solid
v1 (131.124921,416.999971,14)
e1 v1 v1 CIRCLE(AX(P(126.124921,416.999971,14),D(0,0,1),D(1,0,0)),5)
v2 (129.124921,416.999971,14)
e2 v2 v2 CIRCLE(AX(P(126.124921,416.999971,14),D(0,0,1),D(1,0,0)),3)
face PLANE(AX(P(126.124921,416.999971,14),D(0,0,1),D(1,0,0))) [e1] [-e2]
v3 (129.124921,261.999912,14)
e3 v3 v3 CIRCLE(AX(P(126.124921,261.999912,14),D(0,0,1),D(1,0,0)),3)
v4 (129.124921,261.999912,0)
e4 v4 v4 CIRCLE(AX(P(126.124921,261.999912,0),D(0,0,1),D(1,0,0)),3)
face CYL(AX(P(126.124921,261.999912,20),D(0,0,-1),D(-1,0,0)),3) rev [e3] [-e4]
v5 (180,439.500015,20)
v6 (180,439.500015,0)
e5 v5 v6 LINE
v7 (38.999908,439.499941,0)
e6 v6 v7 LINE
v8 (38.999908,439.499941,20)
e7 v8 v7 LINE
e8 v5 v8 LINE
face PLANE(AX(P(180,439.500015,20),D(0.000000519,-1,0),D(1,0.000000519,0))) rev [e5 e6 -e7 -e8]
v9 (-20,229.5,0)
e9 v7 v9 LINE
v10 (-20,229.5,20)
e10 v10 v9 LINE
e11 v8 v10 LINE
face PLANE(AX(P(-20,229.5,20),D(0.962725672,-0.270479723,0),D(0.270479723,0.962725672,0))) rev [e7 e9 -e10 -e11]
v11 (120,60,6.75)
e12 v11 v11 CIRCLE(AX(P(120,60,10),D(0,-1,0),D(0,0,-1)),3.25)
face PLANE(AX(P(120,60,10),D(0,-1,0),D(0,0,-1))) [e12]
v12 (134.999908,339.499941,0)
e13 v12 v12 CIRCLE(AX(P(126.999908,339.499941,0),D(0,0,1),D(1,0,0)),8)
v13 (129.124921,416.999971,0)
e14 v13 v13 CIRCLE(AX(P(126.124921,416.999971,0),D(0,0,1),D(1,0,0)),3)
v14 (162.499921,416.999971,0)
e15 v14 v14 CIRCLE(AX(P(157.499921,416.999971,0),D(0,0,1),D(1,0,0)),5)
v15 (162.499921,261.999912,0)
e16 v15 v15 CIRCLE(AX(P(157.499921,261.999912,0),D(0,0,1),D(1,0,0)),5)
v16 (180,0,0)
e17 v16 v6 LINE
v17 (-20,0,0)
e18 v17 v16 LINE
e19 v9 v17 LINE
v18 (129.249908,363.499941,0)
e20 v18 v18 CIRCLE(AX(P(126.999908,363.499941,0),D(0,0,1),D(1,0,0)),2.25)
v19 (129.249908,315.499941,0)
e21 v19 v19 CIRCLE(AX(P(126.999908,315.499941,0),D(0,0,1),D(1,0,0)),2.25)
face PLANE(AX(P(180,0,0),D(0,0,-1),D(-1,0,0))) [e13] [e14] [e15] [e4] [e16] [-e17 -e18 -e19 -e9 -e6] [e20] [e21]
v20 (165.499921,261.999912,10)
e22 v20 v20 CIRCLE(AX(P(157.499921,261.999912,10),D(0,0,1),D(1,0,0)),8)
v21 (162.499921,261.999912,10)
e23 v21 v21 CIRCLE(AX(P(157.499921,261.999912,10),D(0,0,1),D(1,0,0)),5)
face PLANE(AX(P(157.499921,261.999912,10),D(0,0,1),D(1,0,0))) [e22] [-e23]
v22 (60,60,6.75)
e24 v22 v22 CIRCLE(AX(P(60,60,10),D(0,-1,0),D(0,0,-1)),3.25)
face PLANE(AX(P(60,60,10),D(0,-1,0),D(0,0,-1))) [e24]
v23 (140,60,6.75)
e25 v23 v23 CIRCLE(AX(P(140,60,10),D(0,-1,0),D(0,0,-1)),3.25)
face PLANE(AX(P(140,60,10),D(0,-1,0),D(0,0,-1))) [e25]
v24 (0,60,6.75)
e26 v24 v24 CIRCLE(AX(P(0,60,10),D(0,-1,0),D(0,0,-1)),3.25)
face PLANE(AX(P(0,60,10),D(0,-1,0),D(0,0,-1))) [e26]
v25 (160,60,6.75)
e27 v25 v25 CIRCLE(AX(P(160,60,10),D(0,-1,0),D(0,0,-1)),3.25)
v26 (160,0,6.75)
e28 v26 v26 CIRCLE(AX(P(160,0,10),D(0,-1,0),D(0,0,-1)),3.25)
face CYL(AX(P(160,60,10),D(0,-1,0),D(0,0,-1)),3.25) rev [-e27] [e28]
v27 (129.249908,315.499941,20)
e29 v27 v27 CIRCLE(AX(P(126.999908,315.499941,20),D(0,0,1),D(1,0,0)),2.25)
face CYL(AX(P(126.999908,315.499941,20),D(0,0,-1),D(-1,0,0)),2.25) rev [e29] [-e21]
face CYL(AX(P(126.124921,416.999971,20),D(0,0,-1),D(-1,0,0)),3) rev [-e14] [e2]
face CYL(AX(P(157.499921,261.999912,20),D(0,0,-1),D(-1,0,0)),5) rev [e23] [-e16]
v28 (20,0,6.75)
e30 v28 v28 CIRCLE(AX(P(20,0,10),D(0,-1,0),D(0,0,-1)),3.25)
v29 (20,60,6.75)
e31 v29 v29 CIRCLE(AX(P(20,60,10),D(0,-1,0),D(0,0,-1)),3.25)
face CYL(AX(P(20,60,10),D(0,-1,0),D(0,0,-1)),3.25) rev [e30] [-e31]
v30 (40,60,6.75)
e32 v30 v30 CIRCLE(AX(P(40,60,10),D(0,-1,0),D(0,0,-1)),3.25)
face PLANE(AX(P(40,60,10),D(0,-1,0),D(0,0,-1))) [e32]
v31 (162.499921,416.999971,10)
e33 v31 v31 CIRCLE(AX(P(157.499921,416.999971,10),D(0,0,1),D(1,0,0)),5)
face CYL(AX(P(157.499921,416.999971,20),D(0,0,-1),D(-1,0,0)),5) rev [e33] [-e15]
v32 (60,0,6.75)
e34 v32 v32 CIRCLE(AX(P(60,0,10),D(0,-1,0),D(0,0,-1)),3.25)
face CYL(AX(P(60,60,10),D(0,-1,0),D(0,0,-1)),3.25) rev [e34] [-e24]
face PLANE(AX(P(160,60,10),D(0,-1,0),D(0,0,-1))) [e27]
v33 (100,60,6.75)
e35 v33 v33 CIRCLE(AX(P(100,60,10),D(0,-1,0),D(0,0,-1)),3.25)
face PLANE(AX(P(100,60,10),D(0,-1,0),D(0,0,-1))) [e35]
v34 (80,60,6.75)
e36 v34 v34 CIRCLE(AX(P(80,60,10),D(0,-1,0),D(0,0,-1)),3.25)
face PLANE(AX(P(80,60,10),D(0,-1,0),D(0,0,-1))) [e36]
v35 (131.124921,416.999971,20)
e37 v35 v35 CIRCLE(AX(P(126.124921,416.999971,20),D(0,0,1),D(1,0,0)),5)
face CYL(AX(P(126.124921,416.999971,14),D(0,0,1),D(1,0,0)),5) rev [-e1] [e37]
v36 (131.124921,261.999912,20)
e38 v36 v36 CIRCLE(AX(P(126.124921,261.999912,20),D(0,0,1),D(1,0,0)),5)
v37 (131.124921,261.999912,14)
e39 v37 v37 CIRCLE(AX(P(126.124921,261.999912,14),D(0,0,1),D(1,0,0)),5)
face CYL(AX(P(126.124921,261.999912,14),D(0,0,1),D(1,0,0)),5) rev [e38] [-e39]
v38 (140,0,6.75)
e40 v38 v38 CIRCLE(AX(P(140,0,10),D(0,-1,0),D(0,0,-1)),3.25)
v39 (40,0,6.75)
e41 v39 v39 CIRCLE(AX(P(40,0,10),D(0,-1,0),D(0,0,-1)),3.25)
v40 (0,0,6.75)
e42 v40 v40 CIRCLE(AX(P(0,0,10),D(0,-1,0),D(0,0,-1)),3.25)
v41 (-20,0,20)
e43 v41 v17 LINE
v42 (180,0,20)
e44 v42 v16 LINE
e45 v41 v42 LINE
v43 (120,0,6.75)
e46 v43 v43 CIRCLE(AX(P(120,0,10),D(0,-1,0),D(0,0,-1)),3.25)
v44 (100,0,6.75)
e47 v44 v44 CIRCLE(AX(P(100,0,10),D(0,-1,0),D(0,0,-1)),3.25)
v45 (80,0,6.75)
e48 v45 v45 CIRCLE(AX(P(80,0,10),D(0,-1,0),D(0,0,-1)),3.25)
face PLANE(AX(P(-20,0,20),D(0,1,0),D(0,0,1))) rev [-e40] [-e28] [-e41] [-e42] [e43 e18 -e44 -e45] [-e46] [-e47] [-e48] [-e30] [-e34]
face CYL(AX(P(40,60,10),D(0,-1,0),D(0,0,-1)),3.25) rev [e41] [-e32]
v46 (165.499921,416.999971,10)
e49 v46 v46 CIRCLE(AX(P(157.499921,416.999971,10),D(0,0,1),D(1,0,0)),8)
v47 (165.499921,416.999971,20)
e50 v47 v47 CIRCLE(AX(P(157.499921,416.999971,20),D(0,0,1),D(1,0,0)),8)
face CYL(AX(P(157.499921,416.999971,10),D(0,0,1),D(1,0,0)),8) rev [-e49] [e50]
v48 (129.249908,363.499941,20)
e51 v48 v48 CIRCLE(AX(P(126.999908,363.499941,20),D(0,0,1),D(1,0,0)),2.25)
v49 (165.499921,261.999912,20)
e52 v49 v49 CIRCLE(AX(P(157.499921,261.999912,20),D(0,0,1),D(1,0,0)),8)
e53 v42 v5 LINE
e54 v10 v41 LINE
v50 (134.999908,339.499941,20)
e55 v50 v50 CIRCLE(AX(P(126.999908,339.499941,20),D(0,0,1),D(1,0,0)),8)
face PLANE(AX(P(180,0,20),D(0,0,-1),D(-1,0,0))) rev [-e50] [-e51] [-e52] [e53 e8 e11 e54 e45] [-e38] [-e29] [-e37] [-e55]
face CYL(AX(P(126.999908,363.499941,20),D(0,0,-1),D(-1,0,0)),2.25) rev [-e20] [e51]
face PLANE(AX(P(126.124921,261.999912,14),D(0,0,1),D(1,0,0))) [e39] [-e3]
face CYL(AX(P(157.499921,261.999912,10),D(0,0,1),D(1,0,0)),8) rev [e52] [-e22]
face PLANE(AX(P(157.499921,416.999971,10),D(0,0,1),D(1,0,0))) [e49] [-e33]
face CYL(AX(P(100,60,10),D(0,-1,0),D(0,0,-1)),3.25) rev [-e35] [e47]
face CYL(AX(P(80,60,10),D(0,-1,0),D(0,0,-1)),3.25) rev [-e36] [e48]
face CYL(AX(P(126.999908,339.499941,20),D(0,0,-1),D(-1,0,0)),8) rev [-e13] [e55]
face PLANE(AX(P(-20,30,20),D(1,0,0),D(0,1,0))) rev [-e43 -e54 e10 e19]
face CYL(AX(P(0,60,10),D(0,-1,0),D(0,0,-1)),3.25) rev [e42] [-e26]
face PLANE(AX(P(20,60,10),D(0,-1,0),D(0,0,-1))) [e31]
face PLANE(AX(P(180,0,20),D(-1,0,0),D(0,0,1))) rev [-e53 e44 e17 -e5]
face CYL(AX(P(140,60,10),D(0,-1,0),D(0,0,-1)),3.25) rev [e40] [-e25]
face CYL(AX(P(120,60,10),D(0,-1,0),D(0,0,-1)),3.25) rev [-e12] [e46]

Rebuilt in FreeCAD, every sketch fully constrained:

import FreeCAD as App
import Part
import Sketcher

V = App.Vector

doc = App.newDocument("Part")
body = doc.addObject("PartDesign::Body", "Body")

# Sketch on XY plane
sketch1 = doc.addObject("Sketcher::SketchObject", "Sketch")
body.addObject(sketch1)
sketch1.AttachmentSupport = (doc.XY_Plane, [""])
sketch1.MapMode = "FlatFace"
sketch1.addGeometry(Part.LineSegment(V(38.999908, 439.499941, 0), V(-20, 229.5, 0)), False)
sketch1.addGeometry(Part.LineSegment(V(-20, 229.5, 0), V(-20, 0, 0)), False)
sketch1.addGeometry(Part.LineSegment(V(-20, 0, 0), V(180, 0, 0)), False)
sketch1.addGeometry(Part.LineSegment(V(180, 0, 0), V(180, 439.500015, 0)), False)
sketch1.addGeometry(Part.LineSegment(V(180, 439.500015, 0), V(38.999908, 439.499941, 0)), False)
sketch1.addGeometry(Part.Circle(V(157.499921, 261.999912, 0), V(0, 0, 1), 5), False)
sketch1.addGeometry(Part.Circle(V(126.124921, 261.999912, 0), V(0, 0, 1), 3), False)
sketch1.addGeometry(Part.Circle(V(126.999908, 315.499941, 0), V(0, 0, 1), 2.25), False)
sketch1.addGeometry(Part.Circle(V(126.999908, 339.499941, 0), V(0, 0, 1), 8), False)
sketch1.addGeometry(Part.Circle(V(157.499921, 416.999971, 0), V(0, 0, 1), 5), False)
sketch1.addGeometry(Part.Circle(V(126.999908, 363.499941, 0), V(0, 0, 1), 2.25), False)
sketch1.addGeometry(Part.Circle(V(126.124921, 416.999971, 0), V(0, 0, 1), 3), False)
sketch1.addConstraint(Sketcher.Constraint("Coincident", 0, 2, 1, 1))
sketch1.addConstraint(Sketcher.Constraint("Coincident", 1, 2, 2, 1))
sketch1.addConstraint(Sketcher.Constraint("Coincident", 2, 2, 3, 1))
sketch1.addConstraint(Sketcher.Constraint("Coincident", 3, 2, 4, 1))
sketch1.addConstraint(Sketcher.Constraint("Coincident", 4, 2, 0, 1))
sketch1.addConstraint(Sketcher.Constraint("Vertical", 1))
sketch1.addConstraint(Sketcher.Constraint("Horizontal", 2))
sketch1.addConstraint(Sketcher.Constraint("Vertical", 3))
sketch1.addConstraint(Sketcher.Constraint("Equal", 5, 9))
sketch1.addConstraint(Sketcher.Constraint("Equal", 7, 10))
sketch1.addConstraint(Sketcher.Constraint("Equal", 6, 11))
sketch1.addConstraint(Sketcher.Constraint("PointOnObject", 1, 2, -1))
sketch1.addConstraint(Sketcher.Constraint("Horizontal", 5, 3, 6, 3))
sketch1.addConstraint(Sketcher.Constraint("Horizontal", 9, 3, 11, 3))
sketch1.addConstraint(Sketcher.Constraint("Vertical", 7, 3, 8, 3))
sketch1.addConstraint(Sketcher.Constraint("Vertical", 5, 3, 9, 3))
sketch1.addConstraint(Sketcher.Constraint("Vertical", 8, 3, 10, 3))
sketch1.addConstraint(Sketcher.Constraint("Vertical", 6, 3, 11, 3))
sketch1.addConstraint(Sketcher.Constraint("Diameter", 5, 10.0))
sketch1.addConstraint(Sketcher.Constraint("Diameter", 6, 6.0))
sketch1.addConstraint(Sketcher.Constraint("Diameter", 8, 16.0))
sketch1.addConstraint(Sketcher.Constraint("Diameter", 7, 4.5))
sketch1.addConstraint(Sketcher.Constraint("DistanceX", 2, 1, 2, 2, 200.0))
sketch1.addConstraint(Sketcher.Constraint("DistanceY", 1, 2, 1, 1, 229.5))
sketch1.addConstraint(Sketcher.Constraint("DistanceX", 0, 2, -1, 1, 20.0))
sketch1.addConstraint(Sketcher.Constraint("DistanceY", 7, 3, 8, 3, 24.0))
sketch1.addConstraint(Sketcher.Constraint("DistanceY", 8, 3, 10, 3, 24.0))
sketch1.addConstraint(Sketcher.Constraint("DistanceX", 4, 2, 10, 3, 88.0))
sketch1.addConstraint(Sketcher.Constraint("DistanceY", 10, 3, 4, 2, 76.0))
sketch1.addConstraint(Sketcher.Constraint("DistanceX", 6, 3, 5, 3, 31.375))
sketch1.addConstraint(Sketcher.Constraint("DistanceY", 3, 1, 3, 2, 439.500015))
sketch1.addConstraint(Sketcher.Constraint("DistanceX", -1, 1, 5, 3, 157.499921))
sketch1.addConstraint(Sketcher.Constraint("DistanceX", -1, 1, 7, 3, 126.999908))
sketch1.addConstraint(Sketcher.Constraint("DistanceY", -1, 1, 7, 3, 315.499941))
sketch1.addConstraint(Sketcher.Constraint("DistanceY", -1, 1, 9, 3, 416.999971))
sketch1.addConstraint(Sketcher.Constraint("DistanceY", 6, 3, 7, 3, 53.500029))
pad1 = doc.addObject("PartDesign::Pad", "Pad")
body.addObject(pad1)
pad1.Profile = sketch1
pad1.Length = 20

# Sketch on XY plane
sketch2 = doc.addObject("Sketcher::SketchObject", "Sketch001")
body.addObject(sketch2)
sketch2.AttachmentSupport = (doc.XY_Plane, [""])
sketch2.MapMode = "FlatFace"
sketch2.AttachmentOffset = App.Placement(V(0, 0, 20), App.Rotation())
sketch2.addGeometry(Part.Circle(V(157.499921, 416.999971, 0), V(0, 0, 1), 8), False)
sketch2.addGeometry(Part.Circle(V(157.499921, 261.999912, 0), V(0, 0, 1), 8), False)
sketch2.addConstraint(Sketcher.Constraint("Equal", 0, 1))
sketch2.addConstraint(Sketcher.Constraint("Vertical", 0, 3, 1, 3))
sketch2.addConstraint(Sketcher.Constraint("Diameter", 0, 16.0))
sketch2.addConstraint(Sketcher.Constraint("DistanceX", -1, 1, 0, 3, 157.499921))
sketch2.addConstraint(Sketcher.Constraint("DistanceY", -1, 1, 0, 3, 416.999971))
sketch2.addConstraint(Sketcher.Constraint("DistanceY", 1, 3, 0, 3, 155.000059))
pocket1 = doc.addObject("PartDesign::Pocket", "Pocket")
body.addObject(pocket1)
pocket1.Profile = sketch2
pocket1.Length = 10

# Sketch on XZ plane
sketch3 = doc.addObject("Sketcher::SketchObject", "Sketch002")
body.addObject(sketch3)
sketch3.AttachmentSupport = (doc.XZ_Plane, [""])
sketch3.MapMode = "FlatFace"
sketch3.addGeometry(Part.Circle(V(20, 10, 0), V(0, 0, 1), 3.25), False)
sketch3.addGeometry(Part.Circle(V(40, 10, 0), V(0, 0, 1), 3.25), False)
sketch3.addGeometry(Part.Circle(V(60, 10, 0), V(0, 0, 1), 3.25), False)
sketch3.addGeometry(Part.Circle(V(80, 10, 0), V(0, 0, 1), 3.25), False)
sketch3.addGeometry(Part.Circle(V(100, 10, 0), V(0, 0, 1), 3.25), False)
sketch3.addGeometry(Part.Circle(V(120, 10, 0), V(0, 0, 1), 3.25), False)
sketch3.addGeometry(Part.Circle(V(140, 10, 0), V(0, 0, 1), 3.25), False)
sketch3.addGeometry(Part.Circle(V(160, 10, 0), V(0, 0, 1), 3.25), False)
sketch3.addGeometry(Part.Circle(V(0, 10, 0), V(0, 0, 1), 3.25), False)
sketch3.addConstraint(Sketcher.Constraint("Equal", 0, 1))
sketch3.addConstraint(Sketcher.Constraint("Equal", 1, 2))
sketch3.addConstraint(Sketcher.Constraint("Equal", 2, 3))
sketch3.addConstraint(Sketcher.Constraint("Equal", 3, 4))
sketch3.addConstraint(Sketcher.Constraint("Equal", 4, 5))
sketch3.addConstraint(Sketcher.Constraint("Equal", 5, 6))
sketch3.addConstraint(Sketcher.Constraint("Equal", 6, 7))
sketch3.addConstraint(Sketcher.Constraint("Equal", 7, 8))
sketch3.addConstraint(Sketcher.Constraint("PointOnObject", 8, 3, -2))
sketch3.addConstraint(Sketcher.Constraint("Horizontal", 0, 3, 1, 3))
sketch3.addConstraint(Sketcher.Constraint("Horizontal", 1, 3, 2, 3))
sketch3.addConstraint(Sketcher.Constraint("Horizontal", 2, 3, 3, 3))
sketch3.addConstraint(Sketcher.Constraint("Horizontal", 3, 3, 4, 3))
sketch3.addConstraint(Sketcher.Constraint("Horizontal", 4, 3, 5, 3))
sketch3.addConstraint(Sketcher.Constraint("Horizontal", 5, 3, 6, 3))
sketch3.addConstraint(Sketcher.Constraint("Horizontal", 6, 3, 7, 3))
sketch3.addConstraint(Sketcher.Constraint("Horizontal", 7, 3, 8, 3))
sketch3.addConstraint(Sketcher.Constraint("Diameter", 0, 6.5))
sketch3.addConstraint(Sketcher.Constraint("DistanceX", -1, 1, 0, 3, 20.0))
sketch3.addConstraint(Sketcher.Constraint("DistanceY", -1, 1, 0, 3, 10.0))
sketch3.addConstraint(Sketcher.Constraint("DistanceX", -1, 1, 1, 3, 40.0))
sketch3.addConstraint(Sketcher.Constraint("DistanceX", -1, 1, 2, 3, 60.0))
sketch3.addConstraint(Sketcher.Constraint("DistanceX", -1, 1, 3, 3, 80.0))
sketch3.addConstraint(Sketcher.Constraint("DistanceX", -1, 1, 4, 3, 100.0))
sketch3.addConstraint(Sketcher.Constraint("DistanceX", -1, 1, 5, 3, 120.0))
sketch3.addConstraint(Sketcher.Constraint("DistanceX", -1, 1, 6, 3, 140.0))
sketch3.addConstraint(Sketcher.Constraint("DistanceX", -1, 1, 7, 3, 160.0))
pocket2 = doc.addObject("PartDesign::Pocket", "Pocket001")
body.addObject(pocket2)
pocket2.Profile = sketch3
pocket2.Length = 60

# Sketch on XY plane
sketch4 = doc.addObject("Sketcher::SketchObject", "Sketch003")
body.addObject(sketch4)
sketch4.AttachmentSupport = (doc.XY_Plane, [""])
sketch4.MapMode = "FlatFace"
sketch4.AttachmentOffset = App.Placement(V(0, 0, 20), App.Rotation())
sketch4.addGeometry(Part.Circle(V(126.124921, 416.999971, 0), V(0, 0, 1), 5), False)
sketch4.addGeometry(Part.Circle(V(126.124921, 261.999912, 0), V(0, 0, 1), 5), False)
sketch4.addConstraint(Sketcher.Constraint("Equal", 0, 1))
sketch4.addConstraint(Sketcher.Constraint("Vertical", 0, 3, 1, 3))
sketch4.addConstraint(Sketcher.Constraint("Diameter", 0, 10.0))
sketch4.addConstraint(Sketcher.Constraint("DistanceX", -1, 1, 0, 3, 126.124921))
sketch4.addConstraint(Sketcher.Constraint("DistanceY", -1, 1, 0, 3, 416.999971))
sketch4.addConstraint(Sketcher.Constraint("DistanceY", 1, 3, 0, 3, 155.000059))
pocket3 = doc.addObject("PartDesign::Pocket", "Pocket002")
body.addObject(pocket3)
pocket3.Profile = sketch4
pocket3.Length = 6

doc.recompute()
